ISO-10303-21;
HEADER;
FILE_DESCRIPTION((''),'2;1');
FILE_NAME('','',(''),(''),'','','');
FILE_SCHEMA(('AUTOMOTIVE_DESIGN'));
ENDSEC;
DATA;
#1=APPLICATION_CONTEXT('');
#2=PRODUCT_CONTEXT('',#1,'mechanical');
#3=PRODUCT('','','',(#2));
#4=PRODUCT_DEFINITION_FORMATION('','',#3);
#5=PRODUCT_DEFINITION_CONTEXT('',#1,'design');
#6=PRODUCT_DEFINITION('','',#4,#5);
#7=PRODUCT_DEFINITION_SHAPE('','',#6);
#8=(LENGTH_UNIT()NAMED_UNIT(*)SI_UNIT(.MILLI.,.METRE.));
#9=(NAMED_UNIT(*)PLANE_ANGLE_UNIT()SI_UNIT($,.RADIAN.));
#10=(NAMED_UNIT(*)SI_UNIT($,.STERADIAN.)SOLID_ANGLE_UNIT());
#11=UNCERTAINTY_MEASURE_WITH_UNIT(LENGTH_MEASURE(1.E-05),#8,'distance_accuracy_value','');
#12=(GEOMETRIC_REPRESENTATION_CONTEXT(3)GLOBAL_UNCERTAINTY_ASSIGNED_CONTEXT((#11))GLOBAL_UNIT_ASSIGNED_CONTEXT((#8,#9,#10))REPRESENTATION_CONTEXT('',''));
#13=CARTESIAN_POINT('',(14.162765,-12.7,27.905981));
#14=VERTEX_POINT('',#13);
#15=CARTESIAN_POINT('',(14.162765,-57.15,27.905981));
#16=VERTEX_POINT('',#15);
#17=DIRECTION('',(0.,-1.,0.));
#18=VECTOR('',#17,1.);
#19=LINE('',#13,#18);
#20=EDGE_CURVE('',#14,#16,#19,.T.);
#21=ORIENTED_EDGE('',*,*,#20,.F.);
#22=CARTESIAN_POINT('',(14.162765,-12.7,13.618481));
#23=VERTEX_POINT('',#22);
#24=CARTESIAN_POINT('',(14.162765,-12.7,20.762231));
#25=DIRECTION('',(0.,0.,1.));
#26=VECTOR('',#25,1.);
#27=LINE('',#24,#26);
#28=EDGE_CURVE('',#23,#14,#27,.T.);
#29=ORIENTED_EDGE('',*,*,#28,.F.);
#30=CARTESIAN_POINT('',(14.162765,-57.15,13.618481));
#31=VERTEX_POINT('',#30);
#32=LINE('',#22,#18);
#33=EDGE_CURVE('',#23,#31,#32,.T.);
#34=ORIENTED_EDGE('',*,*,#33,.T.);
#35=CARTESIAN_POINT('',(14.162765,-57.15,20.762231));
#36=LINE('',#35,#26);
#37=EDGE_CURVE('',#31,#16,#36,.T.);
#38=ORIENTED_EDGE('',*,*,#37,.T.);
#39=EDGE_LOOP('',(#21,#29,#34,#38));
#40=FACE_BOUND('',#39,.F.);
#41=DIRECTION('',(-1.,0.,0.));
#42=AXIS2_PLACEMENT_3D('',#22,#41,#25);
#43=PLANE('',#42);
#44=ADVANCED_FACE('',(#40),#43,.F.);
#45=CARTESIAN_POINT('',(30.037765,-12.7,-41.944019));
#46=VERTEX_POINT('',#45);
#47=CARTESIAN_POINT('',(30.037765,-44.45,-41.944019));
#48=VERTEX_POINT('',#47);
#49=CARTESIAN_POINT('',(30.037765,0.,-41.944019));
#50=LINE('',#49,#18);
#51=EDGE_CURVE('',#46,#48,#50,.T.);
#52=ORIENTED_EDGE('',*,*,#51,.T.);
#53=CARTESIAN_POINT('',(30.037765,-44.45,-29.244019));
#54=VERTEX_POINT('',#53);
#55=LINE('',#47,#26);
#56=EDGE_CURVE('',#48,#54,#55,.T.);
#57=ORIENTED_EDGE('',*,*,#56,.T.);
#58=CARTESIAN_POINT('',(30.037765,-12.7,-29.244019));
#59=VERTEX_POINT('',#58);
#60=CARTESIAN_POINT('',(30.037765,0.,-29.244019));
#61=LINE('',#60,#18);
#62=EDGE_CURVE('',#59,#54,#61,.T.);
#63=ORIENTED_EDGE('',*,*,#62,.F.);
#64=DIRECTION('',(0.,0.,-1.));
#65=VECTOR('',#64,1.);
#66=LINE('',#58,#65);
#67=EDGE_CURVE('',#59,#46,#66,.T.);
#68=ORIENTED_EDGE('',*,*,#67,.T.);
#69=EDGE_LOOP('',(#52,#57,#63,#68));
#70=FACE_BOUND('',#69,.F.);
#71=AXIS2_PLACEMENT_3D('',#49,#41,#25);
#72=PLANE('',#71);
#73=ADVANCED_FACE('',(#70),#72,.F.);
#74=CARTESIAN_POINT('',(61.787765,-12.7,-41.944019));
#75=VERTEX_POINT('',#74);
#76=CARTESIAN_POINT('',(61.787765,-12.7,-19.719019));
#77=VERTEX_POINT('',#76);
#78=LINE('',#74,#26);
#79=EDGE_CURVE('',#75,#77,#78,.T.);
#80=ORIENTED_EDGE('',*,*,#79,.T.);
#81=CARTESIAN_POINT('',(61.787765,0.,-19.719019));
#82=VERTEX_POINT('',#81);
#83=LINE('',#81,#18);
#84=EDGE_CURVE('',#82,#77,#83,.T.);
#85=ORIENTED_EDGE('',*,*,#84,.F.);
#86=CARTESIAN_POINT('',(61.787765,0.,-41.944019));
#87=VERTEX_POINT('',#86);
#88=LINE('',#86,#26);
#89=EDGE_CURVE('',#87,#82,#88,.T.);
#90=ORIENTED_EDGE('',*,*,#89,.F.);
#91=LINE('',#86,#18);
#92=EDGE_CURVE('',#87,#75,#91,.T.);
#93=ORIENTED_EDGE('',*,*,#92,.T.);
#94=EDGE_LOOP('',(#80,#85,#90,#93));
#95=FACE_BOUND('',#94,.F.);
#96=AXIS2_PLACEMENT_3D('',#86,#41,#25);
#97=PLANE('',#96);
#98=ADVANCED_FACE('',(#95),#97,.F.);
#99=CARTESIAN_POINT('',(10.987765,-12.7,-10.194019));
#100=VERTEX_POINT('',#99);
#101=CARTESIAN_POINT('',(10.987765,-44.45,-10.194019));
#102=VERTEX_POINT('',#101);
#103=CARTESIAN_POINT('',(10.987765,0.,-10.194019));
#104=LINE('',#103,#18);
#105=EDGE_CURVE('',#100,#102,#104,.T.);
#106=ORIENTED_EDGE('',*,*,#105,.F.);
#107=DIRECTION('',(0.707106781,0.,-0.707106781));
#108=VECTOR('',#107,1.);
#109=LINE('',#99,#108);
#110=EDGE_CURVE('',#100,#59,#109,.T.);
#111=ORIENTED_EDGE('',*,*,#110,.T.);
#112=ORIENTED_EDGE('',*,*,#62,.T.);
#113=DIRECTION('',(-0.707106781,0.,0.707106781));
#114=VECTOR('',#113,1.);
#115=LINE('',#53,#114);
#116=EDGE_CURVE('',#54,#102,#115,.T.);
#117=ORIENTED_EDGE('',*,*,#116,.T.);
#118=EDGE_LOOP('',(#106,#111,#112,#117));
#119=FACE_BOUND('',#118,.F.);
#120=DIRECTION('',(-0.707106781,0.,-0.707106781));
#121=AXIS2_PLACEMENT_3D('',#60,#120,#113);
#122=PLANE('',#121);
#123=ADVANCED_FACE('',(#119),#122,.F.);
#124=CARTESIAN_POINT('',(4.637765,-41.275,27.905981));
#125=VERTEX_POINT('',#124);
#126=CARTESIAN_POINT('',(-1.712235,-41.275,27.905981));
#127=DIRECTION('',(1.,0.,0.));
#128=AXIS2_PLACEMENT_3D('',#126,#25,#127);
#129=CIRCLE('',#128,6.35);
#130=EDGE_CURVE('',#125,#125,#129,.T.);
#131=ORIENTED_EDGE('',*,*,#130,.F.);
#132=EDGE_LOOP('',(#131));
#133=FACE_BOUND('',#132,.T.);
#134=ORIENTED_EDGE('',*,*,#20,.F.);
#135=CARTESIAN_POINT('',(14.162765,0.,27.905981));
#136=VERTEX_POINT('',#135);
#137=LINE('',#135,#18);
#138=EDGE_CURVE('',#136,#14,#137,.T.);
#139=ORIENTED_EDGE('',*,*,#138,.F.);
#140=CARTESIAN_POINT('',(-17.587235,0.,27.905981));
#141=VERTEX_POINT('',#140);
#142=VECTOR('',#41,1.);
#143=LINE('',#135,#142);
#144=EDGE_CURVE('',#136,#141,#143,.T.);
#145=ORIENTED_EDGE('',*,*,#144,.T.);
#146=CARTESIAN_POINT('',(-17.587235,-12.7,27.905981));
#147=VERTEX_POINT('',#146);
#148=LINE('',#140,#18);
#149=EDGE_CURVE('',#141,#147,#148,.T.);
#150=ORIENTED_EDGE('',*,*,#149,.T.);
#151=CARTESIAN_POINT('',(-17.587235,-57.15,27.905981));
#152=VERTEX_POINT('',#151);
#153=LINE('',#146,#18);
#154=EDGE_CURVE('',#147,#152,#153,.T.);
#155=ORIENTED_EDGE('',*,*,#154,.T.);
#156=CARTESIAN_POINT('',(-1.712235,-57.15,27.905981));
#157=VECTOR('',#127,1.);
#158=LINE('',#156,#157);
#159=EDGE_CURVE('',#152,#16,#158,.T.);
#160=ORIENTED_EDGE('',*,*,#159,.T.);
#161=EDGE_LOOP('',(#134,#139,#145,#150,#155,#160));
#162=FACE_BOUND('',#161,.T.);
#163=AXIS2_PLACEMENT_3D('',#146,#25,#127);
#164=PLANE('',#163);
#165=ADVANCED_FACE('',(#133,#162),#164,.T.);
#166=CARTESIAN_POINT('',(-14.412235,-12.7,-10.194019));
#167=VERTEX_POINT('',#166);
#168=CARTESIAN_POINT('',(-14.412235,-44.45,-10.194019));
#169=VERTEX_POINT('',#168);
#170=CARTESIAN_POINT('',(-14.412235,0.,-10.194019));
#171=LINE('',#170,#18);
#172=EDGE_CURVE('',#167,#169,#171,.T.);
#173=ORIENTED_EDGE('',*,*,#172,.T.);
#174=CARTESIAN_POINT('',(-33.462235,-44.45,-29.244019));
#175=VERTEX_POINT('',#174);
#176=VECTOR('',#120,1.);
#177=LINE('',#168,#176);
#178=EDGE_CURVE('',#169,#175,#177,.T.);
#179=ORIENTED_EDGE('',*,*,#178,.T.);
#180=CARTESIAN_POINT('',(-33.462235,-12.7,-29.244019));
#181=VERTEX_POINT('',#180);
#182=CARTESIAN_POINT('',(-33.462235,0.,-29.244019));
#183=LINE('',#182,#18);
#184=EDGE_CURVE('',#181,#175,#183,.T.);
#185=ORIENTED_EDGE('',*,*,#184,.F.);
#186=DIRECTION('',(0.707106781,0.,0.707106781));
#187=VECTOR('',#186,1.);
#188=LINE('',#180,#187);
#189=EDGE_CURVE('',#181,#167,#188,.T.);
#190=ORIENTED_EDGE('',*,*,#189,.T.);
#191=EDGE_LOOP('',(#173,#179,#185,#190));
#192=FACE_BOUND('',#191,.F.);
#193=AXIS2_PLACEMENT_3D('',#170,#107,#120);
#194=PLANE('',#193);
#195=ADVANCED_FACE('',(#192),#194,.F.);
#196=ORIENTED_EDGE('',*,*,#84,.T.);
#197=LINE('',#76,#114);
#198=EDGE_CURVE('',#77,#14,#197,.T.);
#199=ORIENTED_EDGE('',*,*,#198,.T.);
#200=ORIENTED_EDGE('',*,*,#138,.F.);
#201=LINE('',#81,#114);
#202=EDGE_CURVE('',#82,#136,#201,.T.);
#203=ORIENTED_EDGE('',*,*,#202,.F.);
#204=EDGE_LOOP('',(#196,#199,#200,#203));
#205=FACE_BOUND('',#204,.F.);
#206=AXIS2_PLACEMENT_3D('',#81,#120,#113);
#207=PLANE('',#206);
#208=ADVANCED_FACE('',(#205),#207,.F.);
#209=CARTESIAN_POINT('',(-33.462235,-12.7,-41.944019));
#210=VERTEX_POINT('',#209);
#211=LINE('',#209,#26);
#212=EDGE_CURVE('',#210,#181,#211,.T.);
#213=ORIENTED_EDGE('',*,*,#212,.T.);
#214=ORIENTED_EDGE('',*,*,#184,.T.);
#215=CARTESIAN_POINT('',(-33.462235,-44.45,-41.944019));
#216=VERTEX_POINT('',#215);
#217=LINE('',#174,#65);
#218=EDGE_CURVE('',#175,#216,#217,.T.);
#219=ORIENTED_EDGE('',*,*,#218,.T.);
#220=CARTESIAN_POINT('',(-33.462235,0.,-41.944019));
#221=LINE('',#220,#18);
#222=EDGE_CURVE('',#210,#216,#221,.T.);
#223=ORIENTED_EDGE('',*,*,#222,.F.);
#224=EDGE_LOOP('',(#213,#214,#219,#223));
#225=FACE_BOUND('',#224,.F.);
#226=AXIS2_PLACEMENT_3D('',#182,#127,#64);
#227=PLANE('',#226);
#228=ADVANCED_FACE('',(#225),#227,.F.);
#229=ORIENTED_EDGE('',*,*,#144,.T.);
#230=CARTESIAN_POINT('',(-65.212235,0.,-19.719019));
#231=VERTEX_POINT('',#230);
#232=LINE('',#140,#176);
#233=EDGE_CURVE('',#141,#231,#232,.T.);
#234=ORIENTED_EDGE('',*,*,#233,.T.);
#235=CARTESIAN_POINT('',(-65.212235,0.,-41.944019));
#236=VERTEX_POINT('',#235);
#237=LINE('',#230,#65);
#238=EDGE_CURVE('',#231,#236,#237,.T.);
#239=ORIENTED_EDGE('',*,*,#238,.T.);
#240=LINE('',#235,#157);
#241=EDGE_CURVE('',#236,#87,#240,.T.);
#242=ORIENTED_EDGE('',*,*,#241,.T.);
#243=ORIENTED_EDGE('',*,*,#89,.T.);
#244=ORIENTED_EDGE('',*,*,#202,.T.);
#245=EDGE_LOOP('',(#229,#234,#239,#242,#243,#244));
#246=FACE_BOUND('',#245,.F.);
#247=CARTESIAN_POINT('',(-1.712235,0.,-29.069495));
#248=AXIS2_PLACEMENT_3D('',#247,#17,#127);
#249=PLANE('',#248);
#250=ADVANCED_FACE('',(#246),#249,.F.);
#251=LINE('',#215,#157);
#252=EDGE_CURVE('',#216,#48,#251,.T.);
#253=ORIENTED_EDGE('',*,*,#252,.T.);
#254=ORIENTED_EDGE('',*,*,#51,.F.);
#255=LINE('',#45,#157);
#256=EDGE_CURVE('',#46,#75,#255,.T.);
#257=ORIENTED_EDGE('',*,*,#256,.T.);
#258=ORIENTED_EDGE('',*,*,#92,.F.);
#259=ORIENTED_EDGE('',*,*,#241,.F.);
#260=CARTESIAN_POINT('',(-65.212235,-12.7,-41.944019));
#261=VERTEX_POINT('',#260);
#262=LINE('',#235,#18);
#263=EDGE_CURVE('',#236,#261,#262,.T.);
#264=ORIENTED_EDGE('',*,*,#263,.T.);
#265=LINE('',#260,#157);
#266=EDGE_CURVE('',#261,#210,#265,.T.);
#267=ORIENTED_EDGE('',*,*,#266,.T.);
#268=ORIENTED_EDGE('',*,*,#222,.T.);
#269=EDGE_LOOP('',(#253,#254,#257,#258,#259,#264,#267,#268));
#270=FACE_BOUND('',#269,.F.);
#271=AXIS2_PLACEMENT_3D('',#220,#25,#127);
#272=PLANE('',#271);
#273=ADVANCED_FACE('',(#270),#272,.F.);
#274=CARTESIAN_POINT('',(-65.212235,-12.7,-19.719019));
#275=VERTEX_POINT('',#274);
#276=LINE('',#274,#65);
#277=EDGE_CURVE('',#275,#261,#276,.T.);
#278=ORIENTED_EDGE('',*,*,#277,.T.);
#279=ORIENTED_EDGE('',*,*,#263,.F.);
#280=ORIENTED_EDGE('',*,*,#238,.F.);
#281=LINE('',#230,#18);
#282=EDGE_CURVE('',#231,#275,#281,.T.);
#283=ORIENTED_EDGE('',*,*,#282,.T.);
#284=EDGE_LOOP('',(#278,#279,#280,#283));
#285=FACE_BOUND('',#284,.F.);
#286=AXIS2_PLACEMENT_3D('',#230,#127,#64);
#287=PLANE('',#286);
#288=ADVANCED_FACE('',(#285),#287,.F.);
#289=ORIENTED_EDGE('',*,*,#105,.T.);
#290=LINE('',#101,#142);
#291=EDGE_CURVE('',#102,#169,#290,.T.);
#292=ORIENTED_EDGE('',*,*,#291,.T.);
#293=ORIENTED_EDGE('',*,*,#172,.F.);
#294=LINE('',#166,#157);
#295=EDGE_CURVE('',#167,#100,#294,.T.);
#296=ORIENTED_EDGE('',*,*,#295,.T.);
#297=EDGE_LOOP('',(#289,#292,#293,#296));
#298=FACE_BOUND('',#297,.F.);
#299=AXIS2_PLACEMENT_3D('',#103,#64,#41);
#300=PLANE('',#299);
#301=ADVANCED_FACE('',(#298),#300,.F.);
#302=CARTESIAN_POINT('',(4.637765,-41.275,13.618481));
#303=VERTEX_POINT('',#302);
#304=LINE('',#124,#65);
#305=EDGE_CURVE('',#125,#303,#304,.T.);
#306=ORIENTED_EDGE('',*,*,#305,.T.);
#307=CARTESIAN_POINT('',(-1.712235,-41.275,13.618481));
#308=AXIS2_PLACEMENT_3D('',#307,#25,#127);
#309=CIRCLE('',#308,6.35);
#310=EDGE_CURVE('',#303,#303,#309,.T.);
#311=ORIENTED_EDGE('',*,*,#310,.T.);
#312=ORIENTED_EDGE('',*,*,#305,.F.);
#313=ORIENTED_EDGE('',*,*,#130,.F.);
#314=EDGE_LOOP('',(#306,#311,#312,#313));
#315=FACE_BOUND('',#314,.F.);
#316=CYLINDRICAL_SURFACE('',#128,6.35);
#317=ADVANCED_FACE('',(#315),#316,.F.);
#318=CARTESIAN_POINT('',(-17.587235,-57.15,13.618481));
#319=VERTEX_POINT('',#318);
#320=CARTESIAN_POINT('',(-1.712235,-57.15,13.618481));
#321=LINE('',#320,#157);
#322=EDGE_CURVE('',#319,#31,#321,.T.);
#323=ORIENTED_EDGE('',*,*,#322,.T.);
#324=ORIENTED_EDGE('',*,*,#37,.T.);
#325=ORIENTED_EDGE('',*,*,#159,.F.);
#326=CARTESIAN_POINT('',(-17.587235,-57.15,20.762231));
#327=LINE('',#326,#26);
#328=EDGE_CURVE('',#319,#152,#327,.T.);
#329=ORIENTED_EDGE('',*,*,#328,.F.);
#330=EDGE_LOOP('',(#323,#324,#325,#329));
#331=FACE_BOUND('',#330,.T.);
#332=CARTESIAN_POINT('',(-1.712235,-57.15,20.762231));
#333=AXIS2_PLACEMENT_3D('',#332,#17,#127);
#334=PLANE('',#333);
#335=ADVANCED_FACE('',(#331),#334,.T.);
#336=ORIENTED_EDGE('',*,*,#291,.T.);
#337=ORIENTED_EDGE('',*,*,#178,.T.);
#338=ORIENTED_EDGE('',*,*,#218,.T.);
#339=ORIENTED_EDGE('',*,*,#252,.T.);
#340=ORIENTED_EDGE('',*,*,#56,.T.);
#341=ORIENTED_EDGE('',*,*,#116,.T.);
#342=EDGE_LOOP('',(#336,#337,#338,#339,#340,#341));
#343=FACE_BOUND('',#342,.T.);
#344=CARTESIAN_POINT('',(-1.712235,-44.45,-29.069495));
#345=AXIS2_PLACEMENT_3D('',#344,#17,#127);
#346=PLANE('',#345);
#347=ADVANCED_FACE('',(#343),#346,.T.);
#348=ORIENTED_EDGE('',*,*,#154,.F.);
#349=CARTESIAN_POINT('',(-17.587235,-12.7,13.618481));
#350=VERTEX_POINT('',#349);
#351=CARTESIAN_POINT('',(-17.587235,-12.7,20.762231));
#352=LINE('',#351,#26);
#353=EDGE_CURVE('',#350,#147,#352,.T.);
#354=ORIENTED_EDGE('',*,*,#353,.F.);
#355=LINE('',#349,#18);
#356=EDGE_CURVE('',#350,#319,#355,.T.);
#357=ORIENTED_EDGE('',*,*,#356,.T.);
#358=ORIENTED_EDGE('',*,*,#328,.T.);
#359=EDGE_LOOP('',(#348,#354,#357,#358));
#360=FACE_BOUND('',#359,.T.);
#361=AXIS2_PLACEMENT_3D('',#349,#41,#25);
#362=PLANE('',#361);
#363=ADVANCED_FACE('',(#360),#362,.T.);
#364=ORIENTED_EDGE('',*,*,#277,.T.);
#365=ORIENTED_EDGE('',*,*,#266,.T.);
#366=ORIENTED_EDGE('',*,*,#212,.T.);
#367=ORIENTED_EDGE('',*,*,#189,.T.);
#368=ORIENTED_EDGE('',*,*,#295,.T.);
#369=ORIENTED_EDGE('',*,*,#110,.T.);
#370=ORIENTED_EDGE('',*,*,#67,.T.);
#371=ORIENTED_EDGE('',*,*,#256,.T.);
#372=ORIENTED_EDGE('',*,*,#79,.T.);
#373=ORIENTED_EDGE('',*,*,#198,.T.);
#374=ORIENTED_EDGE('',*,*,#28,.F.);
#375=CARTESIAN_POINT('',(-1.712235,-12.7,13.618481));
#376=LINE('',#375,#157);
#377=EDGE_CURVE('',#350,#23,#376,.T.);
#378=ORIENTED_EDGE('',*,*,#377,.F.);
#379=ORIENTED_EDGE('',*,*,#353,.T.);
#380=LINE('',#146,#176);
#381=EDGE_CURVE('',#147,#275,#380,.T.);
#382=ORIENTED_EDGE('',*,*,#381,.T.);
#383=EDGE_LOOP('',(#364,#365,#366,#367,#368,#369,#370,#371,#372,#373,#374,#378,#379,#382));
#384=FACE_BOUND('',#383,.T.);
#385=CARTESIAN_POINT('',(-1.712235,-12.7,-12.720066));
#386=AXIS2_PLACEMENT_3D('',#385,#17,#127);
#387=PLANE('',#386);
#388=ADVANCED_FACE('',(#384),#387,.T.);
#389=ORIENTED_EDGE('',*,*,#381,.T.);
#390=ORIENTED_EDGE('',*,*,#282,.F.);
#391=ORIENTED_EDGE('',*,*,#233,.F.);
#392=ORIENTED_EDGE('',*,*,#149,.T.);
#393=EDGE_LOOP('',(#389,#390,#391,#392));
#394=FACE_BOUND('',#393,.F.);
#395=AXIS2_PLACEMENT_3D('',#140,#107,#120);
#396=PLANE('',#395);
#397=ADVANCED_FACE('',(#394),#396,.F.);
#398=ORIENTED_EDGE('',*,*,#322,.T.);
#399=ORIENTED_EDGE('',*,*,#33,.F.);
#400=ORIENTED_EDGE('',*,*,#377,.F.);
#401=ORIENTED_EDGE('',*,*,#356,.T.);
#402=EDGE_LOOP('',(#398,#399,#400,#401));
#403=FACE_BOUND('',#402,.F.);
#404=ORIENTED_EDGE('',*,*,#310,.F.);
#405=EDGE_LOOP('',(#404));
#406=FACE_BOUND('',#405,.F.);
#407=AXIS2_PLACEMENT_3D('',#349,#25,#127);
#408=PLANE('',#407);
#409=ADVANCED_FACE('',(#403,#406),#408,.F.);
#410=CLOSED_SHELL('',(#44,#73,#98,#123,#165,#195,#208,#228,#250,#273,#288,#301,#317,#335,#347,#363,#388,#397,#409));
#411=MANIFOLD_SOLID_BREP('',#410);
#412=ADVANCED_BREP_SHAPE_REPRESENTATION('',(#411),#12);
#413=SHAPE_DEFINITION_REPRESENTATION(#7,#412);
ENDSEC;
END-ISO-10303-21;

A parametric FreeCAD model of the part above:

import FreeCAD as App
import Part
import Sketcher
from FreeCAD import Vector
Q = App.Units.Quantity


def add_polygon(sketch, points):
    """Adds a closed chain of lines whose ends are joined by coincident constraints."""
    first, n = sketch.GeometryCount, len(points)
    for a, b in zip(points, points[1:] + points[:1]):
        sketch.addGeometry(Part.LineSegment(App.Vector(*a, 0), App.Vector(*b, 0)), False)
    for i in range(n):
        sketch.addConstraint(Sketcher.Constraint("Coincident", first + i, 2, first + (i + 1) % n, 1))

doc = App.newDocument("Part")
params = doc.addObject("Spreadsheet::Sheet", "Params")
for row, (alias, value) in enumerate([
    ("sketch1_width", "1 in"),
    ("sketch1_height", "0.5 in"),
    ("sketch1_width2", "1.25 in"),
    ("pad1_length", "0.5 in"),
    ("sketch2_width", "1 in"),
    ("sketch2_width2", "2.5 in"),
    ("sketch2_height", "0.5 in"),
    ("pad2_length", "1.75 in"),
    ("sketch3_width", "1.25 in"),
    ("sketch3_height", "0.5625 in"),
    ("pad3_length", "1.75 in"),
    ("sketch4_diameter", "0.5 in"),
    ("pocket1_length", "1 in"),
], start=1):
    params.set(f"A{row}", alias)
    params.set(f"B{row}", "=" + value)
    params.setAlias(f"B{row}", alias)

body = doc.addObject("PartDesign::Body", "Body")

sketch1 = body.newObject("Sketcher::SketchObject", "Sketch")
sketch1.AttachmentSupport = (doc.getObject("XZ_Plane"), [""])
sketch1.MapMode = "FlatFace"
add_polygon(sketch1, [(30.037765, -41.944019), (61.787765, -41.944019), (61.787765, -19.719019), (14.162765, 27.905981), (-17.587235, 27.905981), (-65.212235, -19.719019), (-65.212235, -41.944019), (-33.462235, -41.944019), (-33.462235, -29.244019), (-14.412235, -10.194019), (10.987765, -10.194019), (30.037765, -29.244019)])
sketch1.addConstraint([
    Sketcher.Constraint("Horizontal", 0),
    Sketcher.Constraint("Vertical", 1),
    Sketcher.Constraint("Horizontal", 3),
    Sketcher.Constraint("Vertical", 5),
    Sketcher.Constraint("Horizontal", 6),
    Sketcher.Constraint("Vertical", 7),
    Sketcher.Constraint("Horizontal", 9),
    Sketcher.Constraint("Vertical", 11),
    Sketcher.Constraint("Perpendicular", 2, 4),
    Sketcher.Constraint("Parallel", 4, 8),
    Sketcher.Constraint("Perpendicular", 8, 10),
    Sketcher.Constraint("Horizontal", 1, 2, 4, 2),
    Sketcher.Constraint("Horizontal", 0, 2, 5, 2),
    Sketcher.Constraint("Horizontal", 7, 2, 10, 2),
    Sketcher.Constraint("Equal", 0, 3),
    Sketcher.Constraint("Equal", 3, 6),
    Sketcher.Constraint("Equal", 2, 4),
    Sketcher.Constraint("DistanceX", 9, 1, 9, 2, Q("1 in")),
    Sketcher.Constraint("DistanceY", 7, 1, 7, 2, Q("0.5 in")),
    Sketcher.Constraint("DistanceX", 4, 2, 1, 2, Q("5 in")),
    Sketcher.Constraint("DistanceX", 0, 1, 0, 2, Q("1.25 in")),
    Sketcher.Constraint("DistanceY", 8, 2, 3, 2, Q("1.5 in")),
    Sketcher.Constraint("DistanceY", 0, 2, -1, 1, Q("41.944019 mm")),
    Sketcher.Constraint("DistanceX", -1, 1, 0, 2, Q("61.787765 mm")),
])
sketch1.setExpression("Constraints[29]", "Params.sketch1_width")
sketch1.setExpression("Constraints[30]", "Params.sketch1_height")
sketch1.setExpression("Constraints[32]", "Params.sketch1_width2")
pad1 = body.newObject("PartDesign::Pad", "Pad")
pad1.Profile = sketch1
pad1.setExpression("Length", "Params.pad1_length")

sketch2 = body.newObject("Sketcher::SketchObject", "Sketch001")
sketch2.AttachmentSupport = (doc.getObject("XZ_Plane"), [""])
sketch2.MapMode = "FlatFace"
add_polygon(sketch2, [(-33.462235, -41.944019), (30.037765, -41.944019), (30.037765, -29.244019), (10.987765, -10.194019), (-14.412235, -10.194019), (-33.462235, -29.244019)])
sketch2.addConstraint([
    Sketcher.Constraint("Horizontal", 0),
    Sketcher.Constraint("Vertical", 1),
    Sketcher.Constraint("Horizontal", 3),
    Sketcher.Constraint("Vertical", 5),
    Sketcher.Constraint("Perpendicular", 2, 4),
    Sketcher.Constraint("Horizontal", 1, 2, 4, 2),
    Sketcher.Constraint("Equal", 2, 4),
    Sketcher.Constraint("DistanceX", 3, 2, 3, 1, Q("1 in")),
    Sketcher.Constraint("DistanceX", 0, 1, 0, 2, Q("2.5 in")),
    Sketcher.Constraint("DistanceY", 1, 1, 1, 2, Q("0.5 in")),
    Sketcher.Constraint("DistanceY", 0, 2, -1, 1, Q("41.944019 mm")),
    Sketcher.Constraint("DistanceX", -1, 1, 0, 2, Q("30.037765 mm")),
])
sketch2.setExpression("Constraints[13]", "Params.sketch2_width")
sketch2.setExpression("Constraints[14]", "Params.sketch2_width2")
sketch2.setExpression("Constraints[15]", "Params.sketch2_height")
pad2 = body.newObject("PartDesign::Pad", "Pad001")
pad2.Profile = sketch2
pad2.setExpression("Length", "Params.pad2_length")

sketch3 = body.newObject("Sketcher::SketchObject", "Sketch002")
sketch3.AttachmentSupport = (doc.getObject("XZ_Plane"), [""])
sketch3.MapMode = "FlatFace"
sketch3.AttachmentOffset = App.Placement(Vector(0, 0, 0.5 * 25.4), App.Rotation())
add_polygon(sketch3, [(-17.587235, 27.905981), (-17.587235, 13.618481), (14.162765, 13.618481), (14.162765, 27.905981)])
sketch3.addConstraint([
    Sketcher.Constraint("Vertical", 0),
    Sketcher.Constraint("Horizontal", 1),
    Sketcher.Constraint("Vertical", 2),
    Sketcher.Constraint("Horizontal", 3),
    Sketcher.Constraint("DistanceX", 1, 1, 1, 2, Q("1.25 in")),
    Sketcher.Constraint("DistanceY", 0, 2, 0, 1, Q("0.5625 in")),
    Sketcher.Constraint("DistanceY", -1, 1, 0, 2, Q("13.618481 mm")),
    Sketcher.Constraint("DistanceX", 0, 2, -1, 1, Q("17.587235 mm")),
])
sketch3.setExpression("Constraints[8]", "Params.sketch3_width")
sketch3.setExpression("Constraints[9]", "Params.sketch3_height")
pad3 = body.newObject("PartDesign::Pad", "Pad002")
pad3.Profile = sketch3
pad3.setExpression("Length", "Params.pad3_length")

sketch4 = body.newObject("Sketcher::SketchObject", "Sketch003")
sketch4.AttachmentSupport = (doc.getObject("XY_Plane"), [""])
sketch4.MapMode = "FlatFace"
sketch4.AttachmentOffset = App.Placement(Vector(0, 0, 27.905981), App.Rotation())
sketch4.addGeometry(Part.Circle(Vector(-1.712235, -41.275, 0), Vector(0, 0, 1), 6.35), False)
sketch4.addConstraint([
    Sketcher.Constraint("Diameter", 0, Q("0.5 in")),
    Sketcher.Constraint("DistanceY", 0, 3, -1, 1, Q("1.625 in")),
    Sketcher.Constraint("DistanceX", 0, 3, -1, 1, Q("1.712235 mm")),
])
sketch4.setExpression("Constraints[0]", "Params.sketch4_diameter")
pocket1 = body.newObject("PartDesign::Pocket", "Pocket")
pocket1.Profile = sketch4
pocket1.setExpression("Length", "Params.pocket1_length")

doc.recompute()
